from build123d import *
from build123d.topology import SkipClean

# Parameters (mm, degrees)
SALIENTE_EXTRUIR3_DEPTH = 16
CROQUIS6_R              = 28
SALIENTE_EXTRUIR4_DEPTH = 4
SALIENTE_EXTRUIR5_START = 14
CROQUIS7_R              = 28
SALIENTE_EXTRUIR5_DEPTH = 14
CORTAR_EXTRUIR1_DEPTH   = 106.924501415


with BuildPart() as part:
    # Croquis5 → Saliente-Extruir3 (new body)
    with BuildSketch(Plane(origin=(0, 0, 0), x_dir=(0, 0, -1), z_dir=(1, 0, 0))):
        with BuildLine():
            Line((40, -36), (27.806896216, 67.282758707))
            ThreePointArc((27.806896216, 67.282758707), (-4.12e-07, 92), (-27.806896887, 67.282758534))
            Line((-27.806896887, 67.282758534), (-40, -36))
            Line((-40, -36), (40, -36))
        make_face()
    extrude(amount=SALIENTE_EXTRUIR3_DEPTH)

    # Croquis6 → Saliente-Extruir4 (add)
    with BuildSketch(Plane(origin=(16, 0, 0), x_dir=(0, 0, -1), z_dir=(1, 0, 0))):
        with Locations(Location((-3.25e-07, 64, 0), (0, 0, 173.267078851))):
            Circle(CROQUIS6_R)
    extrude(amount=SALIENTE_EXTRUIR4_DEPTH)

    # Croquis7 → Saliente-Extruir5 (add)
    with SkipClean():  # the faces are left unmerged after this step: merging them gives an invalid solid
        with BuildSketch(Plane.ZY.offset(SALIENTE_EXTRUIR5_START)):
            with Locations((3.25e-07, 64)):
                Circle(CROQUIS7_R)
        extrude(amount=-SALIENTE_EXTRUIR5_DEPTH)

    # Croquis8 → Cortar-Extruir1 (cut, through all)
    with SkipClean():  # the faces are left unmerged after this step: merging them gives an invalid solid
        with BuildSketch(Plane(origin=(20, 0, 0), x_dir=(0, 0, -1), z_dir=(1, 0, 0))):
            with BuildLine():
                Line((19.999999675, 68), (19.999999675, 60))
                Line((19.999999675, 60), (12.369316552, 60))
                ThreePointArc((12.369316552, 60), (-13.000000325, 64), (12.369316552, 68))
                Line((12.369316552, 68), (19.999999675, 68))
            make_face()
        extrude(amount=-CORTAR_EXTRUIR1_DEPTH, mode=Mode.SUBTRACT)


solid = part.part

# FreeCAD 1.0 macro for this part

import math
import FreeCAD as App
import Part
import Sketcher
from FreeCAD import Vector

doc = App.newDocument("Part")
params = doc.addObject("Spreadsheet::Sheet", "Params")
for row, (alias, value) in enumerate([
    ("sketch1_radius", "28 mm"),
    ("sketch1_height", "80 mm"),
    ("sketch1_length", "104 mm"),
    ("pad1_length", "16 mm"),
    ("sketch2_diameter", "56 mm"),
    ("pad2_length", "4 mm"),
    ("sketch3_diameter", "56 mm"),
    ("pad3_length", "14 mm"),
    ("sketch4_radius", "13 mm"),
    ("sketch4_width", "8 mm"),
], start=1):
    params.set(f"A{row}", alias)
    params.set(f"B{row}", "=" + value)
    params.setAlias(f"B{row}", alias)

body = doc.addObject("PartDesign::Body", "Body")

sketch1 = body.newObject("Sketcher::SketchObject", "Sketch")
sketch1.AttachmentSupport = (doc.getObject("YZ_Plane"), [""])
sketch1.MapMode = "FlatFace"
sketch1.addGeometry([
    Part.LineSegment(Vector(-36, -40, 0), Vector(67.282759, -27.806896, 0)),
    Part.ArcOfCircle(Part.Circle(Vector(64, 0, 0), Vector(0, 0, 1), 28), math.radians(-83.267078), math.radians(83.267079)),
    Part.LineSegment(Vector(67.282759, 27.806897, 0), Vector(-36, 40, 0)),
    Part.LineSegment(Vector(-36, 40, 0), Vector(-36, -40, 0)),
], False)
sketch1.addConstraint([
    Sketcher.Constraint("Tangent", 0, 2, 1, 1),
    Sketcher.Constraint("Tangent", 1, 2, 2, 1),
    Sketcher.Constraint("Coincident", 2, 2, 3, 1),
    Sketcher.Constraint("Coincident", 3, 2, 0, 1),
    Sketcher.Constraint("Vertical", 3),
    Sketcher.Constraint("Symmetric", 0, 2, 1, 2, -1),
    Sketcher.Constraint("Radius", 1, 28.0),
    Sketcher.Constraint("DistanceY", 3, 2, 3, 1, 80.0),
    Sketcher.Constraint("Distance", 0, 104.0),
    Sketcher.Constraint("DistanceX", -1, 1, 1, 3, 64.0),
])
sketch1.setExpression("Constraints[6]", "Params.sketch1_radius")
sketch1.setExpression("Constraints[7]", "Params.sketch1_height")
sketch1.setExpression("Constraints[8]", "Params.sketch1_length")
pad1 = body.newObject("PartDesign::Pad", "Pad")
pad1.Profile = sketch1
pad1.setExpression("Length", "Params.pad1_length")

sketch2 = body.newObject("Sketcher::SketchObject", "Sketch001")
sketch2.AttachmentSupport = (doc.getObject("YZ_Plane"), [""])
sketch2.MapMode = "FlatFace"
sketch2.AttachmentOffset = App.Placement(Vector(0, 0, 16), App.Rotation())
sketch2.addGeometry(Part.Circle(Vector(64, 0, 0), Vector(0, 0, 1), 28), False)
sketch2.addConstraint([
    Sketcher.Constraint("PointOnObject", 0, 3, -1),
    Sketcher.Constraint("Diameter", 0, 56.0),
    Sketcher.Constraint("DistanceX", -1, 1, 0, 3, 64.0),
])
sketch2.setExpression("Constraints[1]", "Params.sketch2_diameter")
pad2 = body.newObject("PartDesign::Pad", "Pad001")
pad2.Profile = sketch2
pad2.setExpression("Length", "Params.pad2_length")

sketch3 = body.newObject("Sketcher::SketchObject", "Sketch002")
sketch3.AttachmentSupport = (doc.getObject("YZ_Plane"), [""])
sketch3.MapMode = "FlatFace"
sketch3.AttachmentOffset = App.Placement(Vector(0, 0, -14), App.Rotation())
sketch3.addGeometry(Part.Circle(Vector(64, 0, 0), Vector(0, 0, 1), 28), False)
sketch3.addConstraint([
    Sketcher.Constraint("PointOnObject", 0, 3, -1),
    Sketcher.Constraint("Diameter", 0, 56.0),
    Sketcher.Constraint("DistanceX", -1, 1, 0, 3, 64.0),
])
sketch3.setExpression("Constraints[1]", "Params.sketch3_diameter")
pad3 = body.newObject("PartDesign::Pad", "Pad002")
pad3.Profile = sketch3
pad3.setExpression("Length", "Params.pad3_length")

sketch4 = body.newObject("Sketcher::SketchObject", "Sketch003")
sketch4.AttachmentSupport = (doc.getObject("YZ_Plane"), [""])
sketch4.MapMode = "FlatFace"
sketch4.AttachmentOffset = App.Placement(Vector(0, 0, 20), App.Rotation())
sketch4.addGeometry([
    Part.LineSegment(Vector(60, -20, 0), Vector(68, -20, 0)),
    Part.LineSegment(Vector(68, -20, 0), Vector(68, -12.369317, 0)),
    Part.ArcOfCircle(Part.Circle(Vector(64, 0, 0), Vector(0, 0, 1), 13), math.radians(-72.079787), math.radians(252.079787)),
    Part.LineSegment(Vector(60, -12.369317, 0), Vector(60, -20, 0)),
], False)
sketch4.addConstraint([
    Sketcher.Constraint("Coincident", 0, 2, 1, 1),
    Sketcher.Constraint("Coincident", 1, 2, 2, 1),
    Sketcher.Constraint("Coincident", 2, 2, 3, 1),
    Sketcher.Constraint("Coincident", 3, 2, 0, 1),
    Sketcher.Constraint("Horizontal", 0),
    Sketcher.Constraint("Vertical", 1),
    Sketcher.Constraint("Vertical", 3),
    Sketcher.Constraint("PointOnObject", 2, 3, -1),
    Sketcher.Constraint("Horizontal", 1, 2, 2, 2),
    Sketcher.Constraint("Radius", 2, 13.0),
    Sketcher.Constraint("DistanceX", 0, 1, 0, 2, 8.0),
    Sketcher.Constraint("DistanceX", -1, 1, 2, 3, 64.0),
    Sketcher.Constraint("DistanceY", 0, 2, -1, 1, 20.0),
])
sketch4.setExpression("Constraints[9]", "Params.sketch4_radius")
sketch4.setExpression("Constraints[10]", "Params.sketch4_width")
pocket1 = body.newObject("PartDesign::Pocket", "Pocket")
pocket1.Profile = sketch4
pocket1.Type = "ThroughAll"

doc.recompute()
